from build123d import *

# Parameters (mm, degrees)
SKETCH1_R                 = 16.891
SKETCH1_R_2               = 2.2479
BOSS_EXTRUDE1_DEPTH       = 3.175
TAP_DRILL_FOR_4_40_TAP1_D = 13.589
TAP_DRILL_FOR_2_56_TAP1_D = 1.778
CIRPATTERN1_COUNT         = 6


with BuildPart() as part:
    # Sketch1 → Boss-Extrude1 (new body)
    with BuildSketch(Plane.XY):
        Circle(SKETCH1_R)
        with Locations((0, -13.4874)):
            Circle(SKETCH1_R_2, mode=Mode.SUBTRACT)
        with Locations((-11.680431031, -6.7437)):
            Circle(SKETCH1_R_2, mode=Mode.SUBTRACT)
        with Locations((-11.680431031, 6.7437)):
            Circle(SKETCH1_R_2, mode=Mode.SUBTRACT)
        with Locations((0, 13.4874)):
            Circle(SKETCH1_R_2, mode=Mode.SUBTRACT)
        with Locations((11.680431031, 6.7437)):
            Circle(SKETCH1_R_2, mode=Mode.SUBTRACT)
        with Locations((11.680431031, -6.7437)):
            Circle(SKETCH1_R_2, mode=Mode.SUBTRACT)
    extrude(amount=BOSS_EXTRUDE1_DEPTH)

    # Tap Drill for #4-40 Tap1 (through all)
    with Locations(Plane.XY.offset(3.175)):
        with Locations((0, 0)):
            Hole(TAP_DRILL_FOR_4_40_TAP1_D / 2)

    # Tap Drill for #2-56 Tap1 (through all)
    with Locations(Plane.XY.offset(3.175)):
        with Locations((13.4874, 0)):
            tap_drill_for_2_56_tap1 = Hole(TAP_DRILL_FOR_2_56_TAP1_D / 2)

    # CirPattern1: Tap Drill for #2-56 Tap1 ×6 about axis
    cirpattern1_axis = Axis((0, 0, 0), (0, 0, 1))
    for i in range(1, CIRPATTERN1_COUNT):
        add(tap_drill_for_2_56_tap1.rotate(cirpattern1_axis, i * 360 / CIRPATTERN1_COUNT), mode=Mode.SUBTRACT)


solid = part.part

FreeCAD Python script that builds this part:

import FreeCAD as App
import Part
import Sketcher

V = App.Vector
Q = App.Units.Quantity

doc = App.newDocument("Part")
params = doc.addObject("Spreadsheet::Sheet", "Params")
for row, (alias, value) in enumerate([
    ("sketch1_diameter", "1.33 in"),
    ("sketch1_diameter2", "0.177 in"),
    ("pad1_length", "0.125 in"),
    ("sketch2_diameter", "0.535 in"),
    ("hole_diameter", "0.535 in"),
    ("sketch3_diameter", "0.07 in"),
    ("hole2_diameter", "0.07 in"),
], start=1):
    params.set(f"A{row}", alias)
    params.set(f"B{row}", "=" + value)
    params.setAlias(f"B{row}", alias)

body = doc.addObject("PartDesign::Body", "Body")

sketch1 = body.newObject("Sketcher::SketchObject", "Sketch")
sketch1.AttachmentSupport = (doc.getObject("XY_Plane"), [""])
sketch1.MapMode = "FlatFace"
sketch1.addGeometry(Part.Circle(V(0, 0, 0), V(0, 0, 1), 16.891), False)
sketch1.addGeometry(Part.Circle(V(-11.680431, -6.7437, 0), V(0, 0, 1), 2.2479), False)
sketch1.addGeometry(Part.Circle(V(0, -13.4874, 0), V(0, 0, 1), 2.2479), False)
sketch1.addGeometry(Part.Circle(V(11.680431, -6.7437, 0), V(0, 0, 1), 2.2479), False)
sketch1.addGeometry(Part.Circle(V(-11.680431, 6.7437, 0), V(0, 0, 1), 2.2479), False)
sketch1.addGeometry(Part.Circle(V(11.680431, 6.7437, 0), V(0, 0, 1), 2.2479), False)
sketch1.addGeometry(Part.Circle(V(0, 13.4874, 0), V(0, 0, 1), 2.2479), False)
sketch1.addConstraint(Sketcher.Constraint("Coincident", 0, 3, -1, 1))
sketch1.addConstraint(Sketcher.Constraint("Equal", 1, 2))
sketch1.addConstraint(Sketcher.Constraint("Equal", 2, 3))
sketch1.addConstraint(Sketcher.Constraint("Equal", 3, 4))
sketch1.addConstraint(Sketcher.Constraint("Equal", 4, 5))
sketch1.addConstraint(Sketcher.Constraint("Equal", 5, 6))
sketch1.addConstraint(Sketcher.Constraint("Symmetric", 3, 3, 4, 3, -1, 1))
sketch1.addConstraint(Sketcher.Constraint("Symmetric", 1, 3, 5, 3, -1, 1))
sketch1.addConstraint(Sketcher.Constraint("Symmetric", 2, 3, 6, 3, -1, 1))
sketch1.addConstraint(Sketcher.Constraint("Symmetric", 1, 3, 3, 3, -2))
sketch1.addConstraint(Sketcher.Constraint("PointOnObject", 2, 3, -2))
sketch1.addConstraint(Sketcher.Constraint("Diameter", 0, Q("1.33 in")))
sketch1.addConstraint(Sketcher.Constraint("Diameter", 1, Q("0.177 in")))
sketch1.addConstraint(Sketcher.Constraint("DistanceY", 2, 3, -1, 1, Q("0.531 in")))
sketch1.addConstraint(Sketcher.Constraint("DistanceY", 1, 3, 4, 3, Q("0.531 in")))
sketch1.addConstraint(Sketcher.Constraint("DistanceX", 1, 3, -1, 1, Q("11.680431 mm")))
sketch1.setExpression("Constraints[11]", "Params.sketch1_diameter")
sketch1.setExpression("Constraints[12]", "Params.sketch1_diameter2")
pad1 = body.newObject("PartDesign::Pad", "Pad")
pad1.Profile = sketch1
pad1.setExpression("Length", "Params.pad1_length")

sketch2 = body.newObject("Sketcher::SketchObject", "Sketch001")
sketch2.AttachmentSupport = (doc.getObject("XY_Plane"), [""])
sketch2.MapMode = "FlatFace"
sketch2.AttachmentOffset = App.Placement(V(0, 0, 0.125 * 25.4), App.Rotation())
sketch2.addGeometry(Part.Circle(V(0, 0, 0), V(0, 0, 1), 6.7945), False)
sketch2.addConstraint(Sketcher.Constraint("Coincident", 0, 3, -1, 1))
sketch2.addConstraint(Sketcher.Constraint("Diameter", 0, Q("0.535 in")))
sketch2.setExpression("Constraints[1]", "Params.sketch2_diameter")
doc.recompute()
hole = body.newObject("PartDesign::Hole", "Hole")
hole.Profile = sketch2
hole.ThreadType = "None"
hole.setExpression("Diameter", "Params.hole_diameter")
hole.DepthType = "ThroughAll"

sketch3 = body.newObject("Sketcher::SketchObject", "Sketch002")
sketch3.AttachmentSupport = (doc.getObject("XY_Plane"), [""])
sketch3.MapMode = "FlatFace"
sketch3.AttachmentOffset = App.Placement(V(0, 0, 0.125 * 25.4), App.Rotation())
sketch3.addGeometry(Part.Circle(V(13.4874, 0, 0), V(0, 0, 1), 0.889), False)
sketch3.addConstraint(Sketcher.Constraint("PointOnObject", 0, 3, -1))
sketch3.addConstraint(Sketcher.Constraint("Diameter", 0, Q("0.07 in")))
sketch3.addConstraint(Sketcher.Constraint("DistanceX", -1, 1, 0, 3, Q("0.531 in")))
sketch3.setExpression("Constraints[1]", "Params.sketch3_diameter")
doc.recompute()
hole2 = body.newObject("PartDesign::Hole", "Hole001")
hole2.Profile = sketch3
hole2.ThreadType = "None"
hole2.setExpression("Diameter", "Params.hole2_diameter")
hole2.DepthType = "ThroughAll"
doc.recompute()

polarpattern = body.newObject("PartDesign::PolarPattern", "PolarPattern")
polarpattern.Originals = [hole2]
polarpattern.Axis = (doc.getObject("Z_Axis"), [""])
polarpattern.Angle = 360
polarpattern.Occurrences = 6
body.Tip = polarpattern

doc.recompute()
